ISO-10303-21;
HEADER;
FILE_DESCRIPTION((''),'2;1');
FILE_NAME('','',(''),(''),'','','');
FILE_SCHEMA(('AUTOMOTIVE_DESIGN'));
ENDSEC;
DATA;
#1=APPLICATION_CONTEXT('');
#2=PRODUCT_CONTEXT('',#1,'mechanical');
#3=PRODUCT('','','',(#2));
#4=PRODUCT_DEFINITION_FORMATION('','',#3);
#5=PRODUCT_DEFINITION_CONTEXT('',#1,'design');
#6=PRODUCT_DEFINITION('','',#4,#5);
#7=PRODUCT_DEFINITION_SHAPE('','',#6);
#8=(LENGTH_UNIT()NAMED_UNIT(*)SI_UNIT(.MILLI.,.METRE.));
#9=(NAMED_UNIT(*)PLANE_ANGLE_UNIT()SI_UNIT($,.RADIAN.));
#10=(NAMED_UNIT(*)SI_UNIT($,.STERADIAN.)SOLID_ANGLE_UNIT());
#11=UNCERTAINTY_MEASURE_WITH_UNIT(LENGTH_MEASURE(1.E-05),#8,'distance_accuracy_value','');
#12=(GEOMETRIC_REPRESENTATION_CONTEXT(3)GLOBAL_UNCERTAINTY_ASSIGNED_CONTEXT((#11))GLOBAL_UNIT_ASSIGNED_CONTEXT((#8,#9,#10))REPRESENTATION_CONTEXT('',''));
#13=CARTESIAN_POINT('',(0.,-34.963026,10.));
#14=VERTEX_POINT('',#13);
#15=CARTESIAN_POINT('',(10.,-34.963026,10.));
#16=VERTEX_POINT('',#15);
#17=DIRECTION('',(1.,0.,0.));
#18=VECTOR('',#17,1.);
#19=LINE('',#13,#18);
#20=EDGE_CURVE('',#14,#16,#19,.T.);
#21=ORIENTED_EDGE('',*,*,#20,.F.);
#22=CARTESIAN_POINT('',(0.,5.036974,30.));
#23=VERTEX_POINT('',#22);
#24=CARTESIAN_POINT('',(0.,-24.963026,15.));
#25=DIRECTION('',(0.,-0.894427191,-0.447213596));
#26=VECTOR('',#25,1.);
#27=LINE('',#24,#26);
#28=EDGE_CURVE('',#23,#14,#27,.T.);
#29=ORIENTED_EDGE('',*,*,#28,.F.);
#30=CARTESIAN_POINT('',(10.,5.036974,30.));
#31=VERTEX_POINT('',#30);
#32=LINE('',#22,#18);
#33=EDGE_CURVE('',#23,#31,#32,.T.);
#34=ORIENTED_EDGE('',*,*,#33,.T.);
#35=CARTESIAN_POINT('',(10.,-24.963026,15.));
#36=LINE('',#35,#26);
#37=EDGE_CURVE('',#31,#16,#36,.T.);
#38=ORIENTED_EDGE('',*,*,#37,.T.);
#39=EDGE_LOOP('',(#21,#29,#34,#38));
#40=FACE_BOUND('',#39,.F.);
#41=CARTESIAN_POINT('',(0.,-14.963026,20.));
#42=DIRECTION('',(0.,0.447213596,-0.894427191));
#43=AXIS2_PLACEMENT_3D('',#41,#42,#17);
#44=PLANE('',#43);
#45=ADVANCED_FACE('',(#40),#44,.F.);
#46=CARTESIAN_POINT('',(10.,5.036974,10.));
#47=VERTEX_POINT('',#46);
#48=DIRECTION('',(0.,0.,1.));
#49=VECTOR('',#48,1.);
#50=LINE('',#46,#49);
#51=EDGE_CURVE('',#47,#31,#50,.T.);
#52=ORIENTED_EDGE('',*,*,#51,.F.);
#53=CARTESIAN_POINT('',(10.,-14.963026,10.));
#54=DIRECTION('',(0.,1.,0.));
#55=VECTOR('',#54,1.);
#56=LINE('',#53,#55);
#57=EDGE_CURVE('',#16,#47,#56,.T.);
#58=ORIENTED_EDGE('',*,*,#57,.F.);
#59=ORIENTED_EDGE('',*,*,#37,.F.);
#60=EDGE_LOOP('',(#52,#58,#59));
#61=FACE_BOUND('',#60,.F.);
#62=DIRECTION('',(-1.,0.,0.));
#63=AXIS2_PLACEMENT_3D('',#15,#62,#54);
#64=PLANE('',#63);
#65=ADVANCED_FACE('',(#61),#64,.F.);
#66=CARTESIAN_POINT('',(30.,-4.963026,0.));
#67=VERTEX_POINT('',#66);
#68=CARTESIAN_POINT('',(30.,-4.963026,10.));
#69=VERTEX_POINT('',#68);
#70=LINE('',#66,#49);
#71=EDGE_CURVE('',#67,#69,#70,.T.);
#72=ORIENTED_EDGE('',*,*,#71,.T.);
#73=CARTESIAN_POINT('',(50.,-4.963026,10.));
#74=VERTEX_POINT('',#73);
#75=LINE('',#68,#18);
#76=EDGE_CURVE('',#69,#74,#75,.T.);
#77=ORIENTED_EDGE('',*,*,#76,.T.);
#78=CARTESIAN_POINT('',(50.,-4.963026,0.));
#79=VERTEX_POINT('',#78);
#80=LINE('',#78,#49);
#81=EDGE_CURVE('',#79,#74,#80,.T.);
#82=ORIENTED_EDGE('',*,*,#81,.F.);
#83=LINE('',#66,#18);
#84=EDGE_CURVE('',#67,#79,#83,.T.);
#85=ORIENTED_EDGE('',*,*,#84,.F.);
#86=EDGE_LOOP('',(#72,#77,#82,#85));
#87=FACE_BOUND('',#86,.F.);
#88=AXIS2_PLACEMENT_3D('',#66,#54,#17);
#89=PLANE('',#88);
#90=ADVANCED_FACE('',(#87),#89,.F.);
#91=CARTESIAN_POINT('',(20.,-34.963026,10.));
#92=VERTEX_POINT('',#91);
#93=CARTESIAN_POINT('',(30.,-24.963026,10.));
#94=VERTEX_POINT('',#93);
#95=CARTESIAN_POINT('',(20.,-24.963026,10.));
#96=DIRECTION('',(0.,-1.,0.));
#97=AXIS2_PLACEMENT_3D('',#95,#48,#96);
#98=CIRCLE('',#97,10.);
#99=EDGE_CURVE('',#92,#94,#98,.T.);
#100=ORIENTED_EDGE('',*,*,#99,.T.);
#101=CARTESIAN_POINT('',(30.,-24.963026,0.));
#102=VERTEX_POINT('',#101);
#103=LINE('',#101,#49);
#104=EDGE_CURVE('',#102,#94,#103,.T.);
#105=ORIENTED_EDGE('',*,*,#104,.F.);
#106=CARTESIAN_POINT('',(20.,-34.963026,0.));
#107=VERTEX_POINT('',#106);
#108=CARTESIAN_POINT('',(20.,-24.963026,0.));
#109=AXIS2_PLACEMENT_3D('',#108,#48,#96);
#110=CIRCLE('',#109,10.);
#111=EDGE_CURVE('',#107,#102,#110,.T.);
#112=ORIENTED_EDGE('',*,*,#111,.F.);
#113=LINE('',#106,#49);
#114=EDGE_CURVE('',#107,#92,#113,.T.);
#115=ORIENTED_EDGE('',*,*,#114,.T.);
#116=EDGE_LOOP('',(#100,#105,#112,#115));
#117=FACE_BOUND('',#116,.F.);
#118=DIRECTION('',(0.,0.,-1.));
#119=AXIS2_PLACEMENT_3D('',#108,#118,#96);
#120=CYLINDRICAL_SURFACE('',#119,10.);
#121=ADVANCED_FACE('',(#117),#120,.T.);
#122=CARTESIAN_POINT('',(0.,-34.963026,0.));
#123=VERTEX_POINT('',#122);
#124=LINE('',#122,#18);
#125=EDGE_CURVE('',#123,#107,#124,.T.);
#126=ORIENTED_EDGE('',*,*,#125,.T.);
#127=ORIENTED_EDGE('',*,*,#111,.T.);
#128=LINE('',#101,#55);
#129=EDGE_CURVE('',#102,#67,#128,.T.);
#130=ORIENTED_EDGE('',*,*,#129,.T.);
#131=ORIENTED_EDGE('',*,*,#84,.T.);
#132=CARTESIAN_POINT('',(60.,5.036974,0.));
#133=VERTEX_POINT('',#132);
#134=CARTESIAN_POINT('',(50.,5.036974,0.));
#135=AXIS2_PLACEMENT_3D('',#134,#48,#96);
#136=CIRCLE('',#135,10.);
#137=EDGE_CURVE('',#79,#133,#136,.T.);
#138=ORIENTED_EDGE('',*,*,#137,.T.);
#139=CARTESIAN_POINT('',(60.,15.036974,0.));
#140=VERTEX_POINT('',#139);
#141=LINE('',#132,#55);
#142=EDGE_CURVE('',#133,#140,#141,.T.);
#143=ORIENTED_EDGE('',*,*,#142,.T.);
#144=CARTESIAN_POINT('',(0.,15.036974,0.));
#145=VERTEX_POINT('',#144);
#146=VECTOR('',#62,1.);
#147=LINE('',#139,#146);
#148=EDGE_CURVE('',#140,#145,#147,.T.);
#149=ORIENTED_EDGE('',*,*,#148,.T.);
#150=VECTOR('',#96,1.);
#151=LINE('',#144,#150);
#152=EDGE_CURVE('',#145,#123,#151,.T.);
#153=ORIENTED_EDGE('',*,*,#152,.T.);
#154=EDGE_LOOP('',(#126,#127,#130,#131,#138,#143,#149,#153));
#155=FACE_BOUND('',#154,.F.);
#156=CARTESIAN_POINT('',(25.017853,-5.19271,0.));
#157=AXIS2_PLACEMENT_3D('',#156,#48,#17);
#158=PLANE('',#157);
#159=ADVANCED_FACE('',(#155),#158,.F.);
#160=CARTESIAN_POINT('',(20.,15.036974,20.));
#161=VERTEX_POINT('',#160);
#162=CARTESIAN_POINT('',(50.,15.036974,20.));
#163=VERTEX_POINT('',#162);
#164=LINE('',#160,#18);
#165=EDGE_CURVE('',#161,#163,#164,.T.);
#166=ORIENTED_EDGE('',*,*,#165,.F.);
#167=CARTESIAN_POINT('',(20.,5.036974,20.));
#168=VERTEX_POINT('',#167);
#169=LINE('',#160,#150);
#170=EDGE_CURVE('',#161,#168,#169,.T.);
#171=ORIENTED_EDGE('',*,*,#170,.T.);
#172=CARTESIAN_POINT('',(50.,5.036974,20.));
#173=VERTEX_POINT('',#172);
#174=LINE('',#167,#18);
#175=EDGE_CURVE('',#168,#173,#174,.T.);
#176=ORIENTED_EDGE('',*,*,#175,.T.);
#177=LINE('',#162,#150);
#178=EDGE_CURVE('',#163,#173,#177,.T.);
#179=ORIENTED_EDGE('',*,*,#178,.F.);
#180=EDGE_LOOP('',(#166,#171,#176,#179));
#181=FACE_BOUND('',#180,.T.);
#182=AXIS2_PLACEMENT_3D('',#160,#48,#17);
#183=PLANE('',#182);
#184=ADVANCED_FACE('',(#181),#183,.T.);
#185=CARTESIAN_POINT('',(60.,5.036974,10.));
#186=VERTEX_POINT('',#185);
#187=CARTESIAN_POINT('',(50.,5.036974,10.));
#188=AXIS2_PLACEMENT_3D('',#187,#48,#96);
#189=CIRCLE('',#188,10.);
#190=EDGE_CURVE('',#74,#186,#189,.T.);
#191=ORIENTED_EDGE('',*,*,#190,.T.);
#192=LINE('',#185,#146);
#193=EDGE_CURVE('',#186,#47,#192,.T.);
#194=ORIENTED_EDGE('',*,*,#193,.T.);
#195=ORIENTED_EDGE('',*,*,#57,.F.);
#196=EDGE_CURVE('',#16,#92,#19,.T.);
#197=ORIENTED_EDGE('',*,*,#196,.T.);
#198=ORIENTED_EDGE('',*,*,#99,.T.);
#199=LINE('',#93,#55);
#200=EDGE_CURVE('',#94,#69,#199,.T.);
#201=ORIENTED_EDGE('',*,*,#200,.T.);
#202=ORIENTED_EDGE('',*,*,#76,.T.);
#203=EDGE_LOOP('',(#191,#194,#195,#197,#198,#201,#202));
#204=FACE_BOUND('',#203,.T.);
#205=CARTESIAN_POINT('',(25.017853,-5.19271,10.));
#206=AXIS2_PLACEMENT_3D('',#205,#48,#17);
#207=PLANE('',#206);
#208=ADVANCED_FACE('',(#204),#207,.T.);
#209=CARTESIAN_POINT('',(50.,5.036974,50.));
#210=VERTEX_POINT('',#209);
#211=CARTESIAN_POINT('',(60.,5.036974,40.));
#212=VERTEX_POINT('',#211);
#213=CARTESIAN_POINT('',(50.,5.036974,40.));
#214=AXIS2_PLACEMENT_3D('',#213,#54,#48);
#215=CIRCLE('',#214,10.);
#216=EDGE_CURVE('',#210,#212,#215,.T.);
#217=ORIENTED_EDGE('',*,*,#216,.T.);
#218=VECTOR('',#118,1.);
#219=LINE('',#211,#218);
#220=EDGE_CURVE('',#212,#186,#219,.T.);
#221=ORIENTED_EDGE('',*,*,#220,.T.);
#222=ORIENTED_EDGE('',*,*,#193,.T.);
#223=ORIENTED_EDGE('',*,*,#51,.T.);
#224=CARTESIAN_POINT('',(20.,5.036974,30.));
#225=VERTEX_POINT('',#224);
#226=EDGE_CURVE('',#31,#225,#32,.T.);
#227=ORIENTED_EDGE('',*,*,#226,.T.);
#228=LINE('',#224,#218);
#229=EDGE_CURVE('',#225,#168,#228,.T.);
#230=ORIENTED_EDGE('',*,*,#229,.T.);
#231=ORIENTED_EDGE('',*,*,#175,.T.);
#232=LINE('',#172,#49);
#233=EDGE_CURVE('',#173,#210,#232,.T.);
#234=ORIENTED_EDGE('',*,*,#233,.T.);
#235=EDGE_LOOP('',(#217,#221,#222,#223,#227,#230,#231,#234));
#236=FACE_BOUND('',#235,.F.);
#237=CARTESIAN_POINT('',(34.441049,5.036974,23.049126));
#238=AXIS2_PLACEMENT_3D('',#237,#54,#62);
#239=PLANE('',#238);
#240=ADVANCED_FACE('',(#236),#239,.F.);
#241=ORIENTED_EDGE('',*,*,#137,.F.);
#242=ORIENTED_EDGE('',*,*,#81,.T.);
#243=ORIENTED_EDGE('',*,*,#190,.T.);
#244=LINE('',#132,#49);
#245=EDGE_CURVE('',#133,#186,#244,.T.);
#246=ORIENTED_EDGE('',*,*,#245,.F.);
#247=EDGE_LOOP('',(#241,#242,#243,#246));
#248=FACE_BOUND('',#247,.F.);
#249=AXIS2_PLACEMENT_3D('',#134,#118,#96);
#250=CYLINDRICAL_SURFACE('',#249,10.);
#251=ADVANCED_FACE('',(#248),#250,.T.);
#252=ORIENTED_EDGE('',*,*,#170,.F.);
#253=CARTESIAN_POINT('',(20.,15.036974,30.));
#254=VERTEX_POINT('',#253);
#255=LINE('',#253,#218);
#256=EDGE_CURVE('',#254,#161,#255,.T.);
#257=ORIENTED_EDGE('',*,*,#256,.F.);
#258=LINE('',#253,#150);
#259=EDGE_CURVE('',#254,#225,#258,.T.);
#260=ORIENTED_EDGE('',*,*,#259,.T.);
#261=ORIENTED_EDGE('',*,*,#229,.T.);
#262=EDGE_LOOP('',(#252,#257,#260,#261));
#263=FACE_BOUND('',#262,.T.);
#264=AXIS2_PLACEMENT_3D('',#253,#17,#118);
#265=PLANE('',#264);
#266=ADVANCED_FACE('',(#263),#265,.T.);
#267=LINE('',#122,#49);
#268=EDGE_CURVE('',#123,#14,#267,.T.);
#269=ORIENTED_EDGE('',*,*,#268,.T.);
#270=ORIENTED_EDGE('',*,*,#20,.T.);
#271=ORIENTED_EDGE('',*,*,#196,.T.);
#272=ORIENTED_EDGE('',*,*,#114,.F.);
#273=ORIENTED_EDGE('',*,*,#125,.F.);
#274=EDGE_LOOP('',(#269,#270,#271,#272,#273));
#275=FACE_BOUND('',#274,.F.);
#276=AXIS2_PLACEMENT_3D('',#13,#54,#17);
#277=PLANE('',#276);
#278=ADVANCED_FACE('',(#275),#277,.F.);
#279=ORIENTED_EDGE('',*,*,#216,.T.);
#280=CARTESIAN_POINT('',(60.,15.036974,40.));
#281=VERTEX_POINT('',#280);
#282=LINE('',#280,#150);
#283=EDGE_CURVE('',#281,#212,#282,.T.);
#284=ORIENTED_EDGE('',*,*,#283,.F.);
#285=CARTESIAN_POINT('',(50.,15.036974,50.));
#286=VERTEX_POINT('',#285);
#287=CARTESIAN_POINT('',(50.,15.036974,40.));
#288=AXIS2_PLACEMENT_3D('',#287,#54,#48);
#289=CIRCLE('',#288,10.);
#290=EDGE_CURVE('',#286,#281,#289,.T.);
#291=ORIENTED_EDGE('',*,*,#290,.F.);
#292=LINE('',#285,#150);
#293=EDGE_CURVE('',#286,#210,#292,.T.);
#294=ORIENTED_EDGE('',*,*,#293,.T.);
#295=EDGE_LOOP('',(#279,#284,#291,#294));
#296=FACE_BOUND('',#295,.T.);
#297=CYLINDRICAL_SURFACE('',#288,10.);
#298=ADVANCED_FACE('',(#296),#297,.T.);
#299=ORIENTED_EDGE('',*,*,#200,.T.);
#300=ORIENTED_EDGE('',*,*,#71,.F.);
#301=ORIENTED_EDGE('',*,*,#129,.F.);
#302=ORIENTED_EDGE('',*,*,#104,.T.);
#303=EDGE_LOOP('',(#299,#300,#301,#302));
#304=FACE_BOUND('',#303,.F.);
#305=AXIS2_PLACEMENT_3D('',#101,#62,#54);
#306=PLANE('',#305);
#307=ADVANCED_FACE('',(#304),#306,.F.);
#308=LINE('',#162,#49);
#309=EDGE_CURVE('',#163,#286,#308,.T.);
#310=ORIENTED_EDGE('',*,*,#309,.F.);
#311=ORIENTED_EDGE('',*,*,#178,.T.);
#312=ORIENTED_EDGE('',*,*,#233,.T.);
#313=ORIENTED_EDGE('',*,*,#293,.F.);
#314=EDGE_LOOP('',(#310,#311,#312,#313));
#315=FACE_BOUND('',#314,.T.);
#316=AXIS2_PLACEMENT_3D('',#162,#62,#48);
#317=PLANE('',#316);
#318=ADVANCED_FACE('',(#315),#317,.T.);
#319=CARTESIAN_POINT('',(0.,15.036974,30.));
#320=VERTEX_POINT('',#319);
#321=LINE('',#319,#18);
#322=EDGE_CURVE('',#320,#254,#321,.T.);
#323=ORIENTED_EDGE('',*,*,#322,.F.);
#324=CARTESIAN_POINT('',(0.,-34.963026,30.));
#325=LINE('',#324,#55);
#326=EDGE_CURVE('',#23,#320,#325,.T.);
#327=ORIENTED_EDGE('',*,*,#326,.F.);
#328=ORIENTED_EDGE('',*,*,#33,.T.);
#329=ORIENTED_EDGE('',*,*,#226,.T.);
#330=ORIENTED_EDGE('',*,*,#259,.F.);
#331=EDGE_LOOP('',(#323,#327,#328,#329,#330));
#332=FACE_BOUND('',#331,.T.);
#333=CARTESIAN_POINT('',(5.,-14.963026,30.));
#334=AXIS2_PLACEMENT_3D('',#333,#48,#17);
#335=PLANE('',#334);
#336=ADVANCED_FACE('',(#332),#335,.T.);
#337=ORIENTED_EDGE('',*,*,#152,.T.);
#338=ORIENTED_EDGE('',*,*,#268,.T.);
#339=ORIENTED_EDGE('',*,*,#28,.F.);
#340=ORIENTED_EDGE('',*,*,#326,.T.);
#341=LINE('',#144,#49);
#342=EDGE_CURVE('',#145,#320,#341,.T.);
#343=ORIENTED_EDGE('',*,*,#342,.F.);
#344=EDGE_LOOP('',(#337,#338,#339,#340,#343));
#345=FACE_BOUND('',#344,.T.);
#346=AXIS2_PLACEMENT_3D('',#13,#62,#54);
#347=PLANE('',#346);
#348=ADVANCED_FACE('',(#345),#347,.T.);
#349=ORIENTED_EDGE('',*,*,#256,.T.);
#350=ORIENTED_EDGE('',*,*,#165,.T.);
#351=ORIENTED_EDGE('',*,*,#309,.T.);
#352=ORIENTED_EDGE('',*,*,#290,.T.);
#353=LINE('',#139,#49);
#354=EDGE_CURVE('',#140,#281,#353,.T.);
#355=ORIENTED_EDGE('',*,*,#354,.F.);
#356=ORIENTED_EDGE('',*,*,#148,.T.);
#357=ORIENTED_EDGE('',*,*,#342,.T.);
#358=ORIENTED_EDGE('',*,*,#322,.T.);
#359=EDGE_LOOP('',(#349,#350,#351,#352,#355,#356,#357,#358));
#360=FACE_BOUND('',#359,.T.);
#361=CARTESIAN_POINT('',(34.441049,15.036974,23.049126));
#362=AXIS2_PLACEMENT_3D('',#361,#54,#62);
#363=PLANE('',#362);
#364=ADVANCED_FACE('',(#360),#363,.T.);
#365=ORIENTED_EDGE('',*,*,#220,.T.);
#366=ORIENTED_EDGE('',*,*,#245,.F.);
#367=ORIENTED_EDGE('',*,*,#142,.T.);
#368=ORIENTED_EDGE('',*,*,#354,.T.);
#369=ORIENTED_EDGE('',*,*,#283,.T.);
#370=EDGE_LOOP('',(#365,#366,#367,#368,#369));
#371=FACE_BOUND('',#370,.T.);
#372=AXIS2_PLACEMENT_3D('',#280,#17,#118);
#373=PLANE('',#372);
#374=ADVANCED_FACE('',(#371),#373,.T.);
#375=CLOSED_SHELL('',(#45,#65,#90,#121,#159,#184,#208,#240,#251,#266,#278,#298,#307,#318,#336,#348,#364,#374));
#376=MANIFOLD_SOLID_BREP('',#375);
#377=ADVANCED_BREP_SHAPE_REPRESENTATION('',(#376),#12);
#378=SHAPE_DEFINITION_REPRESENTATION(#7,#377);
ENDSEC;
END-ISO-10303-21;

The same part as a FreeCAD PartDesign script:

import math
import FreeCAD as App
import Part
import Sketcher
from FreeCAD import Vector


def edges_at(feature, points):
    """Names of the edges that pass closest to the given points."""
    edges = feature.Shape.Edges
    near = lambda p: min(range(len(edges)), key=lambda i: edges[i].distToShape(Part.Vertex(*p))[0])
    return sorted({f"Edge{near(p) + 1}" for p in points})

doc = App.newDocument("Part")
body = doc.addObject("PartDesign::Body", "Body")

# Sketch on XY plane
sketch1 = body.newObject("Sketcher::SketchObject", "Sketch")
sketch1.AttachmentSupport = (doc.getObject("XY_Plane"), [""])
sketch1.MapMode = "FlatFace"
sketch1.addGeometry([
    Part.LineSegment(Vector(60, 15, 0), Vector(0, 15, 0)),  # 0
    Part.LineSegment(Vector(0, 15, 0), Vector(0, -35, 0)),  # 1
    Part.LineSegment(Vector(0, -35, 0), Vector(20, -35, 0)),  # 2
    Part.ArcOfCircle(Part.Circle(Vector(20, -25, 0), Vector(0, 0, 1), 10), math.radians(-90), math.radians(0)),  # 3
    Part.LineSegment(Vector(30, -25, 0), Vector(30, -5, 0)),  # 4
    Part.LineSegment(Vector(30, -5, 0), Vector(50, -5, 0)),  # 5
    Part.ArcOfCircle(Part.Circle(Vector(50, 5, 0), Vector(0, 0, 1), 10), math.radians(-90), math.radians(0)),  # 6
    Part.LineSegment(Vector(60, 5, 0), Vector(60, 15, 0)),  # 7
], False)
sketch1.addConstraint([
    Sketcher.Constraint("Coincident", 0, 2, 1, 1),
    Sketcher.Constraint("Coincident", 1, 2, 2, 1),
    Sketcher.Constraint("Tangent", 2, 2, 3, 1),
    Sketcher.Constraint("Tangent", 3, 2, 4, 1),
    Sketcher.Constraint("Coincident", 4, 2, 5, 1),
    Sketcher.Constraint("Tangent", 5, 2, 6, 1),
    Sketcher.Constraint("Tangent", 6, 2, 7, 1),
    Sketcher.Constraint("Coincident", 7, 2, 0, 1),
    Sketcher.Constraint("Horizontal", 0),
    Sketcher.Constraint("Vertical", 1),
    Sketcher.Constraint("Horizontal", 2),
    Sketcher.Constraint("Vertical", 4),
    Sketcher.Constraint("Horizontal", 5),
    Sketcher.Constraint("Vertical", 7),
    Sketcher.Constraint("Equal", 3, 6),
    Sketcher.Constraint("PointOnObject", 0, 2, -2),
    Sketcher.Constraint("Equal", 2, 5),
    Sketcher.Constraint("Equal", 5, 4),
    Sketcher.Constraint("Radius", 3, 10.0),
    Sketcher.Constraint("DistanceX", 0, 2, 0, 1, 60.0),
    Sketcher.Constraint("DistanceY", 1, 2, 1, 1, 50.0),
    Sketcher.Constraint("DistanceY", 3, 3, -1, 1, 24.963026),
])
pad1 = body.newObject("PartDesign::Pad", "Pad")
pad1.Profile = sketch1
pad1.Length = 10

# Sketch on XZ plane
sketch2 = body.newObject("Sketcher::SketchObject", "Sketch001")
sketch2.AttachmentSupport = (doc.getObject("XZ_Plane"), [""])
sketch2.MapMode = "FlatFace"
sketch2.AttachmentOffset = App.Placement(Vector(0, 0, -15.036974), App.Rotation())
sketch2.addGeometry([
    Part.LineSegment(Vector(60, 40, 0), Vector(60, 10, 0)),  # 0
    Part.LineSegment(Vector(60, 10, 0), Vector(0, 10, 0)),  # 1
    Part.LineSegment(Vector(0, 10, 0), Vector(0, 30, 0)),  # 2
    Part.LineSegment(Vector(0, 30, 0), Vector(20, 30, 0)),  # 3
    Part.LineSegment(Vector(20, 30, 0), Vector(20, 20, 0)),  # 4
    Part.LineSegment(Vector(20, 20, 0), Vector(50, 20, 0)),  # 5
    Part.LineSegment(Vector(50, 20, 0), Vector(50, 50, 0)),  # 6
    Part.ArcOfCircle(Part.Circle(Vector(50, 40, 0), Vector(0, 0, 1), 10), math.radians(0), math.radians(90)),  # 7
], False)
sketch2.addConstraint([
    Sketcher.Constraint("Coincident", 0, 2, 1, 1),
    Sketcher.Constraint("Coincident", 1, 2, 2, 1),
    Sketcher.Constraint("Coincident", 2, 2, 3, 1),
    Sketcher.Constraint("Coincident", 3, 2, 4, 1),
    Sketcher.Constraint("Coincident", 4, 2, 5, 1),
    Sketcher.Constraint("Coincident", 5, 2, 6, 1),
    Sketcher.Constraint("Coincident", 6, 2, 7, 2),
    Sketcher.Constraint("Tangent", 7, 1, 0, 1),
    Sketcher.Constraint("Vertical", 0),
    Sketcher.Constraint("Horizontal", 1),
    Sketcher.Constraint("Vertical", 2),
    Sketcher.Constraint("Horizontal", 3),
    Sketcher.Constraint("Vertical", 4),
    Sketcher.Constraint("Horizontal", 5),
    Sketcher.Constraint("Vertical", 6),
    Sketcher.Constraint("PointOnObject", 1, 2, -2),
    Sketcher.Constraint("Vertical", 7, 3, 5, 2),
    Sketcher.Constraint("Equal", 5, 0),
    Sketcher.Constraint("Equal", 3, 2),
    Sketcher.Constraint("Equal", 0, 6),
    Sketcher.Constraint("Radius", 7, 10.0),
    Sketcher.Constraint("DistanceX", 1, 2, 1, 1, 60.0),
    Sketcher.Constraint("DistanceX", 3, 1, 3, 2, 20.0),
    Sketcher.Constraint("DistanceY", -1, 1, 7, 3, 40.0),
])
pad2 = body.newObject("PartDesign::Pad", "Pad001")
pad2.Profile = sketch2
pad2.Length = 10

# Sketch on XY plane
sketch3 = body.newObject("Sketcher::SketchObject", "Sketch002")
sketch3.AttachmentSupport = (doc.getObject("XY_Plane"), [""])
sketch3.MapMode = "FlatFace"
sketch3.AttachmentOffset = App.Placement(Vector(0, 0, 10), App.Rotation())
sketch3.addGeometry([
    Part.LineSegment(Vector(0, 5, 0), Vector(0, -35, 0)),
    Part.LineSegment(Vector(0, -35, 0), Vector(10, -35, 0)),
    Part.LineSegment(Vector(10, -35, 0), Vector(10, 5, 0)),
    Part.LineSegment(Vector(10, 5, 0), Vector(0, 5, 0)),
], False)
sketch3.addConstraint([
    Sketcher.Constraint("Coincident", 0, 2, 1, 1),
    Sketcher.Constraint("Coincident", 1, 2, 2, 1),
    Sketcher.Constraint("Coincident", 2, 2, 3, 1),
    Sketcher.Constraint("Coincident", 3, 2, 0, 1),
    Sketcher.Constraint("Vertical", 0),
    Sketcher.Constraint("Horizontal", 1),
    Sketcher.Constraint("Vertical", 2),
    Sketcher.Constraint("Horizontal", 3),
    Sketcher.Constraint("PointOnObject", 0, 2, -2),
    Sketcher.Constraint("DistanceX", 1, 1, 1, 2, 10.0),
    Sketcher.Constraint("DistanceY", 0, 2, 0, 1, 40.0),
    Sketcher.Constraint("DistanceY", 0, 2, -1, 1, 34.963026),
])
pad3 = body.newObject("PartDesign::Pad", "Pad002")
pad3.Profile = sketch3
pad3.Length = 20
doc.recompute()

chamfer = body.newObject("PartDesign::Chamfer", "Chamfer")
chamfer.Base = (pad3, edges_at(pad3, [(5, -34.963, 30)]))
chamfer.ChamferType = "Two distances"
chamfer.Size = 40
chamfer.Size2 = 20
chamfer.FlipDirection = True

doc.recompute()
